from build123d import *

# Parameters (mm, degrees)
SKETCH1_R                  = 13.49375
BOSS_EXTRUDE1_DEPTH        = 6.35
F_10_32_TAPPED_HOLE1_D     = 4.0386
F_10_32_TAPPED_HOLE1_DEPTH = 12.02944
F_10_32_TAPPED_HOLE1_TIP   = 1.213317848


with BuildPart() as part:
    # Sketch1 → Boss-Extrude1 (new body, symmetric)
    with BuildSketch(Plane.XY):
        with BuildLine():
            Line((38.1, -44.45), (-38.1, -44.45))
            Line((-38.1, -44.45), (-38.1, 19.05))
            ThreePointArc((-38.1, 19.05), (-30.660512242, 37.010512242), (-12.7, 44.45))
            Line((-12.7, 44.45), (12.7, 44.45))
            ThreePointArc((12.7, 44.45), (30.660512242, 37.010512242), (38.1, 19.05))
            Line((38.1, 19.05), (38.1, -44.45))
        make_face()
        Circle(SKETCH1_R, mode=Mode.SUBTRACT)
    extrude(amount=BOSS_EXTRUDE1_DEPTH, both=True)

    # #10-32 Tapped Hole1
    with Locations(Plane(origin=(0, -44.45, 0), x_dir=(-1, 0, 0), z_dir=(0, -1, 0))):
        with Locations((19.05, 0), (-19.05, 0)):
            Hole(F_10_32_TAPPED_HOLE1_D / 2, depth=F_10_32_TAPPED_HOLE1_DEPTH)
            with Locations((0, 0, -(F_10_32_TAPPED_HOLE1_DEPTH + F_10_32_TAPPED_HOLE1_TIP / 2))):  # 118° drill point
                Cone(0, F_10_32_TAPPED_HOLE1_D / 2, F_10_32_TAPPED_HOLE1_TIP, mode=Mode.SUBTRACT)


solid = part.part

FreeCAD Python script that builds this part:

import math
import FreeCAD as App
import Part
import Sketcher

V = App.Vector
Q = App.Units.Quantity

doc = App.newDocument("Part")
body = doc.addObject("PartDesign::Body", "Body")

# Sketch on XY plane
sketch1 = body.newObject("Sketcher::SketchObject", "Sketch")
sketch1.AttachmentSupport = (doc.getObject("XY_Plane"), [""])
sketch1.MapMode = "FlatFace"
sketch1.addGeometry([
    Part.LineSegment(V(-38, -44, 0), V(38, -44, 0)),  # 0
    Part.LineSegment(V(38, -44, 0), V(38, 19, 0)),  # 1
    Part.ArcOfCircle(Part.Circle(V(13, 19, 0), V(0, 0, 1), 25), math.radians(0), math.radians(90)),  # 2
    Part.LineSegment(V(13, 44, 0), V(-13, 44, 0)),  # 3
    Part.ArcOfCircle(Part.Circle(V(-13, 19, 0), V(0, 0, 1), 25), math.radians(90), math.radians(180)),  # 4
    Part.LineSegment(V(-38, 19, 0), V(-38, -44, 0)),  # 5
    Part.Circle(V(0, 0, 0), V(0, 0, 1), 13),  # 6
], False)
sketch1.addConstraint([
    Sketcher.Constraint("Coincident", 0, 2, 1, 1),
    Sketcher.Constraint("Tangent", 1, 2, 2, 1),
    Sketcher.Constraint("Tangent", 2, 2, 3, 1),
    Sketcher.Constraint("Tangent", 3, 2, 4, 1),
    Sketcher.Constraint("Tangent", 4, 2, 5, 1),
    Sketcher.Constraint("Coincident", 5, 2, 0, 1),
    Sketcher.Constraint("Horizontal", 0),
    Sketcher.Constraint("Vertical", 1),
    Sketcher.Constraint("Horizontal", 3),
    Sketcher.Constraint("Vertical", 5),
    Sketcher.Constraint("Coincident", 6, 3, -1, 1),
    Sketcher.Constraint("Equal", 2, 4),
    Sketcher.Constraint("Radius", 2, Q("1 in")),
    Sketcher.Constraint("DistanceX", 0, 1, 0, 2, Q("3 in")),
    Sketcher.Constraint("Diameter", 6, Q("1.0625 in")),
    Sketcher.Constraint("DistanceY", 1, 1, 1, 2, Q("2.5 in")),
    Sketcher.Constraint("DistanceX", -1, 1, 2, 3, Q("0.5 in")),
    Sketcher.Constraint("DistanceY", -1, 1, 2, 3, Q("0.75 in")),
])
pad1 = body.newObject("PartDesign::Pad", "Pad")
pad1.Profile = sketch1
pad1.Length = Q("0.5 in")
pad1.Midplane = True

# Sketch on XZ plane
sketch2 = body.newObject("Sketcher::SketchObject", "Sketch001")
sketch2.AttachmentSupport = (doc.getObject("XZ_Plane"), [""])
sketch2.MapMode = "FlatFace"
sketch2.AttachmentOffset = App.Placement(V(0, 0, 1.75 * 25.4), App.Rotation())
sketch2.addGeometry([
    Part.Circle(V(-19.1, 0, 0), V(0, 0, 1), 2),
    Part.Circle(V(19.1, 0, 0), V(0, 0, 1), 2),
], False)
sketch2.addConstraint([
    Sketcher.Constraint("Equal", 0, 1),
    Sketcher.Constraint("Symmetric", 0, 3, 1, 3, -1, 1),
    Sketcher.Constraint("PointOnObject", 0, 3, -1),
    Sketcher.Constraint("Diameter", 0, Q("0.159 in")),
    Sketcher.Constraint("DistanceX", 0, 3, 1, 3, Q("1.5 in")),
])
doc.recompute()
hole = body.newObject("PartDesign::Hole", "Hole")
hole.Profile = sketch2
hole.ThreadType = "None"
hole.Diameter = Q("0.159 in")
hole.DepthType = "Dimension"
hole.Depth = Q("0.4736 in")
hole.DrillPoint = "Angled"
hole.DrillPointAngle = 118

doc.recompute()
